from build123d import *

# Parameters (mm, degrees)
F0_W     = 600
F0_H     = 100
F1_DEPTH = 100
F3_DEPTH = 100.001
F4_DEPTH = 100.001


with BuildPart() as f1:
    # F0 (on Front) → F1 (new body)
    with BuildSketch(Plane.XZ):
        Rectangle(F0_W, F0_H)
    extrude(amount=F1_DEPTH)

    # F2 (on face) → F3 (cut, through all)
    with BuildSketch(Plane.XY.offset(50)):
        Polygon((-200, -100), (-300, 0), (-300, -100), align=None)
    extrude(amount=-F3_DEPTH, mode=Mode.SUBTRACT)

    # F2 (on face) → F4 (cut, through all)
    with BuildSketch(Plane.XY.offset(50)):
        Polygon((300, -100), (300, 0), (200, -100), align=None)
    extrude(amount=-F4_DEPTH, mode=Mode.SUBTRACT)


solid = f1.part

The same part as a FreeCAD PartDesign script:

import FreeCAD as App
import Part
import Sketcher

V = App.Vector


def add_polygon(sketch, points):
    """Adds a closed chain of lines whose ends are joined by coincident constraints."""
    first, n = sketch.GeometryCount, len(points)
    for a, b in zip(points, points[1:] + points[:1]):
        sketch.addGeometry(Part.LineSegment(App.Vector(*a, 0), App.Vector(*b, 0)), False)
    for i in range(n):
        sketch.addConstraint(Sketcher.Constraint("Coincident", first + i, 2, first + (i + 1) % n, 1))

doc = App.newDocument("Part")
params = doc.addObject("Spreadsheet::Sheet", "Params")
for row, (alias, value) in enumerate([
    ("sketch1_width", "600 mm"),
    ("sketch1_height", "100 mm"),
    ("pad1_length", "100 mm"),
    ("sketch2_width", "100 mm"),
    ("sketch3_width", "100 mm"),
], start=1):
    params.set(f"A{row}", alias)
    params.set(f"B{row}", "=" + value)
    params.setAlias(f"B{row}", alias)

body = doc.addObject("PartDesign::Body", "Body")

# Sketch on XZ plane
sketch1 = doc.addObject("Sketcher::SketchObject", "Sketch")
body.addObject(sketch1)
sketch1.AttachmentSupport = (doc.XZ_Plane, [""])
sketch1.MapMode = "FlatFace"
add_polygon(sketch1, [(-300, 50), (-300, -50), (300, -50), (300, 50)])  # lines 0-3
sketch1.addConstraint(Sketcher.Constraint("Vertical", 0))
sketch1.addConstraint(Sketcher.Constraint("Horizontal", 1))
sketch1.addConstraint(Sketcher.Constraint("Vertical", 2))
sketch1.addConstraint(Sketcher.Constraint("Horizontal", 3))
sketch1.addConstraint(Sketcher.Constraint("Symmetric", 0, 2, 2, 2, -1, 1))
sketch1.addConstraint(Sketcher.Constraint("DistanceX", 1, 1, 1, 2, 600.0))
sketch1.addConstraint(Sketcher.Constraint("DistanceY", 0, 2, 0, 1, 100.0))
sketch1.setExpression("Constraints[9]", "Params.sketch1_width")
sketch1.setExpression("Constraints[10]", "Params.sketch1_height")
pad1 = doc.addObject("PartDesign::Pad", "Pad")
body.addObject(pad1)
pad1.Profile = sketch1
pad1.setExpression("Length", "Params.pad1_length")

# Sketch on XY plane
sketch2 = doc.addObject("Sketcher::SketchObject", "Sketch001")
body.addObject(sketch2)
sketch2.AttachmentSupport = (doc.XY_Plane, [""])
sketch2.MapMode = "FlatFace"
sketch2.AttachmentOffset = App.Placement(V(0, 0, 50), App.Rotation())
add_polygon(sketch2, [(-200, -100), (-300, 0), (-300, -100)])  # lines 0-2
sketch2.addConstraint(Sketcher.Constraint("Vertical", 1))
sketch2.addConstraint(Sketcher.Constraint("Horizontal", 2))
sketch2.addConstraint(Sketcher.Constraint("PointOnObject", 0, 2, -1))
sketch2.addConstraint(Sketcher.Constraint("Equal", 2, 1))
sketch2.addConstraint(Sketcher.Constraint("DistanceX", 2, 1, 2, 2, 100.0))
sketch2.addConstraint(Sketcher.Constraint("DistanceX", 0, 2, -1, 1, 300.0))
sketch2.setExpression("Constraints[7]", "Params.sketch2_width")
pocket1 = doc.addObject("PartDesign::Pocket", "Pocket")
body.addObject(pocket1)
pocket1.Profile = sketch2
pocket1.Type = "ThroughAll"

# Sketch on XY plane
sketch3 = doc.addObject("Sketcher::SketchObject", "Sketch002")
body.addObject(sketch3)
sketch3.AttachmentSupport = (doc.XY_Plane, [""])
sketch3.MapMode = "FlatFace"
sketch3.AttachmentOffset = App.Placement(V(0, 0, 50), App.Rotation())
add_polygon(sketch3, [(300, -100), (300, 0), (200, -100)])  # lines 0-2
sketch3.addConstraint(Sketcher.Constraint("Vertical", 0))
sketch3.addConstraint(Sketcher.Constraint("Horizontal", 2))
sketch3.addConstraint(Sketcher.Constraint("PointOnObject", 0, 2, -1))
sketch3.addConstraint(Sketcher.Constraint("Equal", 2, 0))
sketch3.addConstraint(Sketcher.Constraint("DistanceX", 2, 1, 2, 2, 100.0))
sketch3.addConstraint(Sketcher.Constraint("DistanceX", -1, 1, 0, 2, 300.0))
sketch3.setExpression("Constraints[7]", "Params.sketch3_width")
pocket2 = doc.addObject("PartDesign::Pocket", "Pocket001")
body.addObject(pocket2)
pocket2.Profile = sketch3
pocket2.Type = "ThroughAll"

doc.recompute()
